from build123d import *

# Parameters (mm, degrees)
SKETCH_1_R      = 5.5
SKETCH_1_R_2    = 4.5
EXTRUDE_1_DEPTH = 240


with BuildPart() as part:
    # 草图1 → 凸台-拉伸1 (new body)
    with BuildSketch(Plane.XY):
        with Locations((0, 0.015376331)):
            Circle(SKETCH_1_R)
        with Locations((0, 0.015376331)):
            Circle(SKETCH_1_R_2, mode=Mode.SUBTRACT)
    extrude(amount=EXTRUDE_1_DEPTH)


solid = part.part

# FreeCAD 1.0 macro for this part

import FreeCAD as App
import Part
import Sketcher

doc = App.newDocument("Part")
params = doc.addObject("Spreadsheet::Sheet", "Params")
for row, (alias, value) in enumerate([
    ("sketch1_diameter", "11 mm"),
    ("sketch1_diameter2", "9 mm"),
    ("pad1_length", "240 mm"),
], start=1):
    params.set(f"A{row}", alias)
    params.set(f"B{row}", "=" + value)
    params.setAlias(f"B{row}", alias)

body = doc.addObject("PartDesign::Body", "Body")

# Sketch on XY plane
sketch1 = doc.addObject("Sketcher::SketchObject", "Sketch")
body.addObject(sketch1)
sketch1.AttachmentSupport = (doc.XY_Plane, [""])
sketch1.MapMode = "FlatFace"
sketch1.addGeometry([
    Part.Circle(App.Vector(0, 0, 0), App.Vector(0, 0, 1), 5.5),
    Part.Circle(App.Vector(0, 0, 0), App.Vector(0, 0, 1), 4.5),
], False)
sketch1.addConstraint([
    Sketcher.Constraint("Coincident", 1, 3, 0, 3),
    Sketcher.Constraint("PointOnObject", 0, 3, -2),
    Sketcher.Constraint("Diameter", 0, 11.0),
    Sketcher.Constraint("Diameter", 1, 9.0),
    Sketcher.Constraint("DistanceY", -1, 1, 0, 3, 0.015376),
])
sketch1.setExpression("Constraints[2]", "Params.sketch1_diameter")
sketch1.setExpression("Constraints[3]", "Params.sketch1_diameter2")
pad1 = doc.addObject("PartDesign::Pad", "Pad")
body.addObject(pad1)
pad1.Profile = sketch1
pad1.setExpression("Length", "Params.pad1_length")

doc.recompute()
